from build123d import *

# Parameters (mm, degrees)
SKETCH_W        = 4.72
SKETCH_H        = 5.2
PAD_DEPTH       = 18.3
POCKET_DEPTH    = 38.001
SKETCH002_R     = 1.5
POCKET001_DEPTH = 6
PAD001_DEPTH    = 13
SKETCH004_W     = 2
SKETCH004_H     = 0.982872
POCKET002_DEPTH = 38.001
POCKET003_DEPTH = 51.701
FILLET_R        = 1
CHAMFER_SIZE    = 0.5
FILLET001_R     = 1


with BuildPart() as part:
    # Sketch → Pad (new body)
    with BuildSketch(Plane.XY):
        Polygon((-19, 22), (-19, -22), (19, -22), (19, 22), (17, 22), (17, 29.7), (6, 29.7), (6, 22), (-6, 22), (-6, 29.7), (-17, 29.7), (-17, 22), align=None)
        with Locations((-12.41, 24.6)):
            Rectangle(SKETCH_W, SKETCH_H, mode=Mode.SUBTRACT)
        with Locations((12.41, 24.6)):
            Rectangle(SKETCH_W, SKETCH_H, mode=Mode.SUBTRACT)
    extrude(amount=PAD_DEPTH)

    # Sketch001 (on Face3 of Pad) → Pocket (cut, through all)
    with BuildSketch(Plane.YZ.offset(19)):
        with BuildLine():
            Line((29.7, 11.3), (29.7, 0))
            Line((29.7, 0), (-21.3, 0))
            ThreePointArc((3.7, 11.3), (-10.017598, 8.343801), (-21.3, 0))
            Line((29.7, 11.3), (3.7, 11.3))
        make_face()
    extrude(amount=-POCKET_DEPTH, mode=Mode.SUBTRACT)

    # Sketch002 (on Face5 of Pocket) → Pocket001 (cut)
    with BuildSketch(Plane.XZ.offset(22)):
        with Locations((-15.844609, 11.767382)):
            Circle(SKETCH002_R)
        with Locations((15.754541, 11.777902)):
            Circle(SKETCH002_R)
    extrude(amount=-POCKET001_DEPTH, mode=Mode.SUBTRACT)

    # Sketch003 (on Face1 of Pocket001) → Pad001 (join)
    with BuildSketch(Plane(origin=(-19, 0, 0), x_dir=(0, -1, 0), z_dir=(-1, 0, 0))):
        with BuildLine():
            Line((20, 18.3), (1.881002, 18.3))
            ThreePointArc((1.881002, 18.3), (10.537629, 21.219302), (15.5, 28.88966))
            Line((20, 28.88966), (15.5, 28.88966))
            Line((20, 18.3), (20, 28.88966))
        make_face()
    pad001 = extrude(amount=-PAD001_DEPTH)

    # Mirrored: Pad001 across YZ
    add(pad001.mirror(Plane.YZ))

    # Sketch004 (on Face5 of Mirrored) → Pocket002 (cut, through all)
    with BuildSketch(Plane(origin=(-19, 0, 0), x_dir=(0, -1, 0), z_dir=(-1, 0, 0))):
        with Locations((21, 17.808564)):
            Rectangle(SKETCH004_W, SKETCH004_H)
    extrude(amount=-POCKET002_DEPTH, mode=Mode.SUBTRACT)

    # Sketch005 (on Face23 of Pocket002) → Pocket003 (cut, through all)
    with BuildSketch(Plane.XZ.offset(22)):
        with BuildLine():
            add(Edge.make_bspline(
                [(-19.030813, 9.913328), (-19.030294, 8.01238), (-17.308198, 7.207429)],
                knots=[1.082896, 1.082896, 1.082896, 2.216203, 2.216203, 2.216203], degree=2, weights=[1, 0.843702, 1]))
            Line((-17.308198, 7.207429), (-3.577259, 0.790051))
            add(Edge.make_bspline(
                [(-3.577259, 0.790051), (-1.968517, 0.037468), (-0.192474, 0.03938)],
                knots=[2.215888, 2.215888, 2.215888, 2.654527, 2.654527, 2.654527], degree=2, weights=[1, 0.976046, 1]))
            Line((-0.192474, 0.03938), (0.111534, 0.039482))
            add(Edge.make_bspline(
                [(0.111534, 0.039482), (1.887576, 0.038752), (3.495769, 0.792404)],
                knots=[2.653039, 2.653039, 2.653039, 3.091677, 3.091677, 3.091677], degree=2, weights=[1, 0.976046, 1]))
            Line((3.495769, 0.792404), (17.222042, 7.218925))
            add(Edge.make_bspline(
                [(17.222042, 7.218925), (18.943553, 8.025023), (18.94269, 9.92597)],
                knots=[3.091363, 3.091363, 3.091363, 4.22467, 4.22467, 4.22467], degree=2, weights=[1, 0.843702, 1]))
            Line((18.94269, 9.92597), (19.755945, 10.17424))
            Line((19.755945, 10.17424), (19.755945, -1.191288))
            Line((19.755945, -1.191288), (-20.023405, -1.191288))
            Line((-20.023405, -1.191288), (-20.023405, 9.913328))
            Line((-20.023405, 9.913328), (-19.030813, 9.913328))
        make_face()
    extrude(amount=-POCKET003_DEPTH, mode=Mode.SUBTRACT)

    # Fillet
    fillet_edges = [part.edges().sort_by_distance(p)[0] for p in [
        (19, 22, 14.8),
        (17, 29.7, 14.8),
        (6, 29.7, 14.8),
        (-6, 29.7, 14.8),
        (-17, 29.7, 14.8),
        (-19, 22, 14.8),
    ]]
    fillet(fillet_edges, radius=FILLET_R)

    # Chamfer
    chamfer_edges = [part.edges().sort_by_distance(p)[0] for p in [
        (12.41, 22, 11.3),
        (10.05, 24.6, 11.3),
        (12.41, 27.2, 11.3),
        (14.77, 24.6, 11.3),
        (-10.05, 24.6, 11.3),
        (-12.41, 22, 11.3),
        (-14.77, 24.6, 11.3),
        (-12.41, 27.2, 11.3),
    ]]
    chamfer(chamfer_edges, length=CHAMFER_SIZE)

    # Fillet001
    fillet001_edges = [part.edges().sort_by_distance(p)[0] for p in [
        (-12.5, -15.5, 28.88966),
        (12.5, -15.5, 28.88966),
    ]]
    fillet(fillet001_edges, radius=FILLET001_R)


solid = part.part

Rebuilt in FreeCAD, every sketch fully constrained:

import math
import FreeCAD as App
import Part
import Sketcher

V = App.Vector


def edges_at(feature, points):
    """Names of the edges that pass closest to the given points."""
    edges = feature.Shape.Edges
    near = lambda p: min(range(len(edges)), key=lambda i: edges[i].distToShape(Part.Vertex(*p))[0])
    return sorted({f"Edge{near(p) + 1}" for p in points})

doc = App.newDocument("Part")
body = doc.addObject("PartDesign::Body", "Body")

# Sketch on XY plane
sketch1 = body.newObject("Sketcher::SketchObject", "Sketch")
sketch1.AttachmentSupport = (doc.getObject("XY_Plane"), [""])
sketch1.MapMode = "FlatFace"
sketch1.addGeometry([
    Part.LineSegment(V(-19, 22, 0), V(-19, -22, 0)),  # 0
    Part.LineSegment(V(-19, -22, 0), V(19, -22, 0)),  # 1
    Part.LineSegment(V(19, -22, 0), V(19, 22, 0)),  # 2
    Part.LineSegment(V(19, 22, 0), V(17, 22, 0)),  # 3
    Part.LineSegment(V(17, 22, 0), V(17, 29.7, 0)),  # 4
    Part.LineSegment(V(17, 29.7, 0), V(6, 29.7, 0)),  # 5
    Part.LineSegment(V(6, 29.7, 0), V(6, 22, 0)),  # 6
    Part.LineSegment(V(6, 22, 0), V(-6, 22, 0)),  # 7
    Part.LineSegment(V(-6, 22, 0), V(-6, 29.7, 0)),  # 8
    Part.LineSegment(V(-6, 29.7, 0), V(-17, 29.7, 0)),  # 9
    Part.LineSegment(V(-17, 29.7, 0), V(-17, 22, 0)),  # 10
    Part.LineSegment(V(-17, 22, 0), V(-19, 22, 0)),  # 11
    Part.LineSegment(V(-10.1, 22, 0), V(-14.8, 22, 0)),  # 12
    Part.LineSegment(V(-14.8, 22, 0), V(-14.8, 27.2, 0)),  # 13
    Part.LineSegment(V(-14.8, 27.2, 0), V(-10.1, 27.2, 0)),  # 14
    Part.LineSegment(V(-10.1, 27.2, 0), V(-10.1, 22, 0)),  # 15
    Part.LineSegment(V(14.8, 22, 0), V(10.1, 22, 0)),  # 16
    Part.LineSegment(V(10.1, 22, 0), V(10.1, 27.2, 0)),  # 17
    Part.LineSegment(V(10.1, 27.2, 0), V(14.8, 27.2, 0)),  # 18
    Part.LineSegment(V(14.8, 27.2, 0), V(14.8, 22, 0)),  # 19
], False)
sketch1.addConstraint([
    Sketcher.Constraint("Coincident", 0, 2, 1, 1),
    Sketcher.Constraint("Coincident", 1, 2, 2, 1),
    Sketcher.Constraint("Coincident", 2, 2, 3, 1),
    Sketcher.Constraint("Coincident", 3, 2, 4, 1),
    Sketcher.Constraint("Coincident", 4, 2, 5, 1),
    Sketcher.Constraint("Coincident", 5, 2, 6, 1),
    Sketcher.Constraint("Coincident", 6, 2, 7, 1),
    Sketcher.Constraint("Coincident", 7, 2, 8, 1),
    Sketcher.Constraint("Coincident", 8, 2, 9, 1),
    Sketcher.Constraint("Coincident", 9, 2, 10, 1),
    Sketcher.Constraint("Coincident", 10, 2, 11, 1),
    Sketcher.Constraint("Coincident", 11, 2, 0, 1),
    Sketcher.Constraint("Coincident", 12, 2, 13, 1),
    Sketcher.Constraint("Coincident", 13, 2, 14, 1),
    Sketcher.Constraint("Coincident", 14, 2, 15, 1),
    Sketcher.Constraint("Coincident", 15, 2, 12, 1),
    Sketcher.Constraint("Coincident", 16, 2, 17, 1),
    Sketcher.Constraint("Coincident", 17, 2, 18, 1),
    Sketcher.Constraint("Coincident", 18, 2, 19, 1),
    Sketcher.Constraint("Coincident", 19, 2, 16, 1),
    Sketcher.Constraint("Vertical", 0),
    Sketcher.Constraint("Horizontal", 1),
    Sketcher.Constraint("Vertical", 2),
    Sketcher.Constraint("Horizontal", 3),
    Sketcher.Constraint("Vertical", 4),
    Sketcher.Constraint("Horizontal", 5),
    Sketcher.Constraint("Vertical", 6),
    Sketcher.Constraint("Horizontal", 7),
    Sketcher.Constraint("Vertical", 8),
    Sketcher.Constraint("Horizontal", 9),
    Sketcher.Constraint("Vertical", 10),
    Sketcher.Constraint("Horizontal", 11),
    Sketcher.Constraint("Horizontal", 12),
    Sketcher.Constraint("Vertical", 13),
    Sketcher.Constraint("Horizontal", 14),
    Sketcher.Constraint("Vertical", 15),
    Sketcher.Constraint("Horizontal", 16),
    Sketcher.Constraint("Vertical", 17),
    Sketcher.Constraint("Horizontal", 18),
    Sketcher.Constraint("Vertical", 19),
    Sketcher.Constraint("Symmetric", 0, 2, 2, 2, -1, 1),
    Sketcher.Constraint("Symmetric", 5, 2, 8, 2, -2),
    Sketcher.Constraint("Symmetric", 3, 2, 10, 2, -2),
    Sketcher.Constraint("Symmetric", 15, 2, 16, 2, -2),
    Sketcher.Constraint("Symmetric", 13, 2, 18, 2, -2),
    Sketcher.Constraint("Horizontal", 3, 2, 6, 2),
    Sketcher.Constraint("Horizontal", 11, 2, 12, 2),
    Sketcher.Constraint("DistanceX", 1, 1, 1, 2, 38.0),
    Sketcher.Constraint("DistanceX", 3, 2, 3, 1, 2.0),
    Sketcher.Constraint("DistanceX", 5, 2, 5, 1, 11.0),
    Sketcher.Constraint("DistanceY", 0, 2, 0, 1, 44.0),
    Sketcher.Constraint("DistanceY", 4, 1, 4, 2, 7.7),
    Sketcher.Constraint("DistanceY", 13, 1, 13, 2, 5.2),
    Sketcher.Constraint("DistanceX", 12, 2, 12, 1, 4.72),
    Sketcher.Constraint("DistanceX", 12, 2, -1, 1, 14.77),
])
pad1 = body.newObject("PartDesign::Pad", "Pad")
pad1.Profile = sketch1
pad1.Length = 18.3

# Sketch on YZ plane
sketch2 = body.newObject("Sketcher::SketchObject", "Sketch001")
sketch2.AttachmentSupport = (doc.getObject("YZ_Plane"), [""])
sketch2.MapMode = "FlatFace"
sketch2.AttachmentOffset = App.Placement(V(0, 0, 19), App.Rotation())
sketch2.addGeometry([
    Part.LineSegment(V(30, 0, 0), V(30, 11, 0)),
    Part.LineSegment(V(30, 11, 0), V(4, 11, 0)),
    Part.ArcOfCircle(Part.Circle(V(4, -22, 0), V(0, 0, 1), 33), math.radians(90), math.radians(139)),
    Part.LineSegment(V(-21, 0, 0), V(30, 0, 0)),
], False)
sketch2.addConstraint([
    Sketcher.Constraint("Coincident", 0, 2, 1, 1),
    Sketcher.Constraint("Tangent", 1, 2, 2, 1),
    Sketcher.Constraint("Coincident", 2, 2, 3, 1),
    Sketcher.Constraint("Coincident", 3, 2, 0, 1),
    Sketcher.Constraint("Vertical", 0),
    Sketcher.Constraint("Horizontal", 1),
    Sketcher.Constraint("Horizontal", 3),
    Sketcher.Constraint("PointOnObject", 2, 2, -1),
    Sketcher.Constraint("DistanceX", 1, 2, 1, 1, 26.0),
    Sketcher.Constraint("DistanceX", 3, 1, 3, 2, 51.0),
    Sketcher.Constraint("DistanceY", 0, 1, 0, 2, 11.3),
    Sketcher.Constraint("DistanceX", -1, 1, 2, 3, 3.700002),
])
pocket1 = body.newObject("PartDesign::Pocket", "Pocket")
pocket1.Profile = sketch2
pocket1.Type = "ThroughAll"

# Sketch on XZ plane
sketch3 = body.newObject("Sketcher::SketchObject", "Sketch002")
sketch3.AttachmentSupport = (doc.getObject("XZ_Plane"), [""])
sketch3.MapMode = "FlatFace"
sketch3.AttachmentOffset = App.Placement(V(0, 0, 22), App.Rotation())
sketch3.addGeometry([
    Part.Circle(V(-15.8, 11.8, 0), V(0, 0, 1), 1.5),
    Part.Circle(V(15.8, 11.8, 0), V(0, 0, 1), 1.5),
], False)
sketch3.addConstraint([
    Sketcher.Constraint("Equal", 0, 1),
    Sketcher.Constraint("Diameter", 0, 3.0),
    Sketcher.Constraint("DistanceY", -1, 1, 1, 3, 11.777902),
    Sketcher.Constraint("DistanceX", 0, 3, -1, 1, 15.844609),
    Sketcher.Constraint("DistanceX", -1, 1, 1, 3, 15.754541),
    Sketcher.Constraint("DistanceY", 0, 3, 1, 3, 0.01052),
])
pocket2 = body.newObject("PartDesign::Pocket", "Pocket001")
pocket2.Profile = sketch3
pocket2.Length = 6

# Sketch on YZ plane
sketch4 = body.newObject("Sketcher::SketchObject", "Sketch003")
sketch4.AttachmentSupport = (doc.getObject("YZ_Plane"), [""])
sketch4.MapMode = "FlatFace"
sketch4.AttachmentOffset = App.Placement(V(0, 0, -19), App.Rotation())
sketch4.addGeometry([
    Part.LineSegment(V(-2.2, 18.3, 0), V(-20, 18.3, 0)),
    Part.LineSegment(V(-20, 18.3, 0), V(-20, 28.9, 0)),
    Part.LineSegment(V(-20, 28.9, 0), V(-15.5, 28.9, 0)),
    Part.ArcOfCircle(Part.Circle(V(-2, 32.2, 0), V(0, 0, 1), 13.9), math.radians(-166), math.radians(-91)),
], False)
sketch4.addConstraint([
    Sketcher.Constraint("Coincident", 0, 2, 1, 1),
    Sketcher.Constraint("Coincident", 1, 2, 2, 1),
    Sketcher.Constraint("Coincident", 2, 2, 3, 1),
    Sketcher.Constraint("Coincident", 3, 2, 0, 1),
    Sketcher.Constraint("Horizontal", 0),
    Sketcher.Constraint("Vertical", 1),
    Sketcher.Constraint("Horizontal", 2),
    Sketcher.Constraint("DistanceX", 2, 1, 2, 2, 4.5),
    Sketcher.Constraint("DistanceX", 0, 2, -1, 1, 20.0),
    Sketcher.Constraint("DistanceY", -1, 1, 0, 2, 18.3),
    Sketcher.Constraint("Radius", 3, 13.867599),
    Sketcher.Constraint("DistanceX", 0, 2, 0, 1, 17.830609),
    Sketcher.Constraint("DistanceY", 1, 1, 1, 2, 10.58966),
])
pad2 = body.newObject("PartDesign::Pad", "Pad001")
pad2.Profile = sketch4
pad2.Length = 13
doc.recompute()

mirrored = body.newObject("PartDesign::Mirrored", "Mirrored")
mirrored.Originals = [pad2]
mirrored.MirrorPlane = (doc.getObject("YZ_Plane"), [""])
body.Tip = mirrored

# Sketch on YZ plane
sketch5 = body.newObject("Sketcher::SketchObject", "Sketch004")
sketch5.AttachmentSupport = (doc.getObject("YZ_Plane"), [""])
sketch5.MapMode = "FlatFace"
sketch5.AttachmentOffset = App.Placement(V(0, 0, -19), App.Rotation())
sketch5.addGeometry([
    Part.LineSegment(V(-20, 18.3, 0), V(-20, 17.3, 0)),
    Part.LineSegment(V(-20, 17.3, 0), V(-22, 17.3, 0)),
    Part.LineSegment(V(-22, 17.3, 0), V(-22, 18.3, 0)),
    Part.LineSegment(V(-22, 18.3, 0), V(-20, 18.3, 0)),
], False)
sketch5.addConstraint([
    Sketcher.Constraint("Coincident", 0, 2, 1, 1),
    Sketcher.Constraint("Coincident", 1, 2, 2, 1),
    Sketcher.Constraint("Coincident", 2, 2, 3, 1),
    Sketcher.Constraint("Coincident", 3, 2, 0, 1),
    Sketcher.Constraint("Vertical", 0),
    Sketcher.Constraint("Horizontal", 1),
    Sketcher.Constraint("Vertical", 2),
    Sketcher.Constraint("Horizontal", 3),
    Sketcher.Constraint("DistanceX", 1, 2, 1, 1, 2.0),
    Sketcher.Constraint("DistanceX", 0, 2, -1, 1, 20.0),
    Sketcher.Constraint("DistanceY", -1, 1, 2, 2, 18.3),
    Sketcher.Constraint("DistanceY", 0, 2, 0, 1, 0.982872),
])
pocket3 = body.newObject("PartDesign::Pocket", "Pocket002")
pocket3.Profile = sketch5
pocket3.Type = "ThroughAll"
pocket3.Reversed = True

# Sketch on XZ plane
sketch6 = body.newObject("Sketcher::SketchObject", "Sketch005")
sketch6.AttachmentSupport = (doc.getObject("XZ_Plane"), [""])
sketch6.MapMode = "FlatFace"
sketch6.AttachmentOffset = App.Placement(V(0, 0, 22), App.Rotation())
sketch6.addGeometry([
    Part.BSplineCurve([V(-19.030813, 9.913328, 0), V(-19.030294, 8.01238, 0), V(-17.308198, 7.207429, 0)], [3, 3], [1.082896, 2.216203], False, 2, [1, 0.843702, 1], False),  # 0
    Part.LineSegment(V(-19.030813, 9.913328, 0), V(-20.023405, 9.913328, 0)),  # 1
    Part.LineSegment(V(-20.023405, 9.913328, 0), V(-20.023405, -1.191288, 0)),  # 2
    Part.LineSegment(V(-20.023405, -1.191288, 0), V(19.755945, -1.191288, 0)),  # 3
    Part.LineSegment(V(19.755945, -1.191288, 0), V(19.755945, 10.17424, 0)),  # 4
    Part.LineSegment(V(19.755945, 10.17424, 0), V(18.94269, 9.92597, 0)),  # 5
    Part.BSplineCurve([V(17.222042, 7.218925, 0), V(18.943553, 8.025023, 0), V(18.94269, 9.92597, 0)], [3, 3], [3.091363, 4.22467], False, 2, [1, 0.843702, 1], False),  # 6
    Part.LineSegment(V(17.222042, 7.218925, 0), V(3.495769, 0.792404, 0)),  # 7
    Part.BSplineCurve([V(0.111534, 0.039482, 0), V(1.887576, 0.038752, 0), V(3.495769, 0.792404, 0)], [3, 3], [2.653039, 3.091677], False, 2, [1, 0.976046, 1], False),  # 8
    Part.LineSegment(V(0.111534, 0.039482, 0), V(-0.192474, 0.03938, 0)),  # 9
    Part.BSplineCurve([V(-3.577259, 0.790051, 0), V(-1.968517, 0.037468, 0), V(-0.192474, 0.03938, 0)], [3, 3], [2.215888, 2.654527], False, 2, [1, 0.976046, 1], False),  # 10
    Part.LineSegment(V(-3.577259, 0.790051, 0), V(-17.308198, 7.207429, 0)),  # 11
], False)
sketch6.addConstraint([
    Sketcher.Constraint("Block", 0),
    Sketcher.Constraint("Block", 6),
    Sketcher.Constraint("Block", 8),
    Sketcher.Constraint("Block", 10),
    Sketcher.Constraint("Coincident", 0, 1, 1, 1),
    Sketcher.Constraint("Coincident", 1, 2, 2, 1),
    Sketcher.Constraint("Coincident", 2, 2, 3, 1),
    Sketcher.Constraint("Coincident", 3, 2, 4, 1),
    Sketcher.Constraint("Coincident", 4, 2, 5, 1),
    Sketcher.Constraint("Coincident", 5, 2, 6, 2),
    Sketcher.Constraint("Coincident", 6, 1, 7, 1),
    Sketcher.Constraint("Coincident", 7, 2, 8, 2),
    Sketcher.Constraint("Coincident", 8, 1, 9, 1),
    Sketcher.Constraint("Coincident", 9, 2, 10, 2),
    Sketcher.Constraint("Coincident", 10, 1, 11, 1),
    Sketcher.Constraint("Coincident", 11, 2, 0, 2),
    Sketcher.Constraint("Horizontal", 1),
    Sketcher.Constraint("Vertical", 2),
    Sketcher.Constraint("Horizontal", 3),
    Sketcher.Constraint("Vertical", 4),
    Sketcher.Constraint("DistanceX", 3, 1, 3, 2, 39.77935),
    Sketcher.Constraint("DistanceX", 1, 2, 1, 1, 0.992592),
    Sketcher.Constraint("DistanceY", 2, 2, 2, 1, 11.104616),
    Sketcher.Constraint("DistanceY", 4, 1, 4, 2, 11.365528),
])
pocket4 = body.newObject("PartDesign::Pocket", "Pocket003")
pocket4.Profile = sketch6
pocket4.Type = "ThroughAll"
doc.recompute()

fillet = body.newObject("PartDesign::Fillet", "Fillet")
fillet.Base = (pocket4, edges_at(pocket4, [
    (19, 22, 14.8),
    (17, 29.7, 14.8),
    (6, 29.7, 14.8),
    (-6, 29.7, 14.8),
    (-17, 29.7, 14.8),
    (-19, 22, 14.8),
]))
fillet.Radius = 1
doc.recompute()

chamfer = body.newObject("PartDesign::Chamfer", "Chamfer")
chamfer.Base = (fillet, edges_at(fillet, [
    (12.41, 22, 11.3),
    (10.05, 24.6, 11.3),
    (12.41, 27.2, 11.3),
    (14.77, 24.6, 11.3),
    (-10.05, 24.6, 11.3),
    (-12.41, 22, 11.3),
    (-14.77, 24.6, 11.3),
    (-12.41, 27.2, 11.3),
]))
chamfer.Size = 0.5
doc.recompute()

fillet2 = body.newObject("PartDesign::Fillet", "Fillet001")
fillet2.Base = (chamfer, edges_at(chamfer, [(-12.5, -15.5, 28.89), (12.5, -15.5, 28.89)]))
fillet2.Radius = 1

doc.recompute()
